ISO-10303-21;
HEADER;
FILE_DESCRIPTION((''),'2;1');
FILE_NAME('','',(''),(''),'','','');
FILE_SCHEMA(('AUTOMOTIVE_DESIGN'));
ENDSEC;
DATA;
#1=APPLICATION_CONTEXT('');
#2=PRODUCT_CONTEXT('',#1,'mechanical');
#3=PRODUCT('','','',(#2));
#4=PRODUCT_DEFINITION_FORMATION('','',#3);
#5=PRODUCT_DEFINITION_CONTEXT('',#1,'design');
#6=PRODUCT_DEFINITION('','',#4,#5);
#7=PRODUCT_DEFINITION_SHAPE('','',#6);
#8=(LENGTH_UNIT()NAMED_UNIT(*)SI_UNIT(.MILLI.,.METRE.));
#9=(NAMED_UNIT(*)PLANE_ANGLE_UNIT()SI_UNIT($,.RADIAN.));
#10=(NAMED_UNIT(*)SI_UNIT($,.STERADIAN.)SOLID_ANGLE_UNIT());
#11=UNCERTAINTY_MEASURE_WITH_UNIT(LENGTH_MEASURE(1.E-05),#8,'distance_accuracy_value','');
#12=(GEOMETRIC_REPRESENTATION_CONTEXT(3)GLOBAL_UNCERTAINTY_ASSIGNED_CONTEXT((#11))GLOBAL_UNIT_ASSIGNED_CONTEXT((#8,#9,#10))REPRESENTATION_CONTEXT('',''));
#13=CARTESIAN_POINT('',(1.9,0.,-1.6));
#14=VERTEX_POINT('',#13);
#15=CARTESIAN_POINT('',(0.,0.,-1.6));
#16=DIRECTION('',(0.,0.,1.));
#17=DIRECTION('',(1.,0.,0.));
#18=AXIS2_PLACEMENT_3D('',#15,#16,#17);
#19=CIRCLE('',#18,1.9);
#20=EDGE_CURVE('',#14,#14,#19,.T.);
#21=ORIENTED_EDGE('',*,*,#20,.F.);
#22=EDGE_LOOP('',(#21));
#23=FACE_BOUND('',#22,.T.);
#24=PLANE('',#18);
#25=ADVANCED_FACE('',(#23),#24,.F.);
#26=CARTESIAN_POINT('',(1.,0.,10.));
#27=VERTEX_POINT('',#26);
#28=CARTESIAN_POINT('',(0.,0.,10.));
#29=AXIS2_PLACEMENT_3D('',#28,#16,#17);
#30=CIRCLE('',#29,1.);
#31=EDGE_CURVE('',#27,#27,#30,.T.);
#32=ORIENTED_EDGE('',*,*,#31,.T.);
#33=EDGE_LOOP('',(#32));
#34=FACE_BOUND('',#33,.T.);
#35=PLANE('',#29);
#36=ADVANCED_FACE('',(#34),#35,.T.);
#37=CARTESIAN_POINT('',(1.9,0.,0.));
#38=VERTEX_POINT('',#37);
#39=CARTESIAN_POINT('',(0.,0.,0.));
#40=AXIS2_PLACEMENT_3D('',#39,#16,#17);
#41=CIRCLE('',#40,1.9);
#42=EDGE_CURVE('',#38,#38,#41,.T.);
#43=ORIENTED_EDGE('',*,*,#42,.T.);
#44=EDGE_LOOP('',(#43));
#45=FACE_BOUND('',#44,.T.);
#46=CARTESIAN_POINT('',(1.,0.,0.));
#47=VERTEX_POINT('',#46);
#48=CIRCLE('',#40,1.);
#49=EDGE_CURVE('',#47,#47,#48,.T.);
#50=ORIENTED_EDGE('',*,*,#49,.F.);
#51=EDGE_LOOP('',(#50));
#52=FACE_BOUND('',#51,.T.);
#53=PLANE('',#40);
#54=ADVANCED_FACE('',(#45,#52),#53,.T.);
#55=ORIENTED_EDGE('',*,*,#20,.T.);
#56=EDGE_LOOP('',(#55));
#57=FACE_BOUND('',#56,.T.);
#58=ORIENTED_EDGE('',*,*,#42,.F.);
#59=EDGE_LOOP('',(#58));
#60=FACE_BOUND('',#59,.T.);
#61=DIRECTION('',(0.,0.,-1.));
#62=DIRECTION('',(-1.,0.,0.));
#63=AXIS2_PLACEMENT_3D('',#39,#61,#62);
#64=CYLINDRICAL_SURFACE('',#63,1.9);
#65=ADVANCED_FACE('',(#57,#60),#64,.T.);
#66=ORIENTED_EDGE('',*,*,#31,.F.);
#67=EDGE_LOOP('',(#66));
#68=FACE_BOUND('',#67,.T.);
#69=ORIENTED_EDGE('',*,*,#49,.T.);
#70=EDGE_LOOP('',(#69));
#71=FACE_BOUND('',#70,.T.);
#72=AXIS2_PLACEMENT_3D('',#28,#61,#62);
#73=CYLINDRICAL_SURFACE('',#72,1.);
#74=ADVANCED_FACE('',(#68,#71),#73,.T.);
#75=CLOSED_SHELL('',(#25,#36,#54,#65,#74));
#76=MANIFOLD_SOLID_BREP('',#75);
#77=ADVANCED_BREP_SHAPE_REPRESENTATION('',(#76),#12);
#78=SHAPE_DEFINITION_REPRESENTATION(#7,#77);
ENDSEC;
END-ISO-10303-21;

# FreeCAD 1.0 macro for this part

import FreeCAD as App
import Part
import Sketcher
Q = App.Units.Quantity

doc = App.newDocument("Part")
body = doc.addObject("PartDesign::Body", "Body")

# Sketch on XY plane
sketch1 = body.newObject("Sketcher::SketchObject", "Sketch")
sketch1.AttachmentSupport = (doc.getObject("XY_Plane"), [""])
sketch1.MapMode = "FlatFace"
sketch1.addGeometry(Part.Circle(App.Vector(0, 0, 0), App.Vector(0, 0, 1), 1), False)
sketch1.addConstraint([
    Sketcher.Constraint("Coincident", 0, 3, -1, 1),
    Sketcher.Constraint("Diameter", 0, Q("2 mm")),
])
pad1 = body.newObject("PartDesign::Pad", "Pad")
pad1.Profile = sketch1
pad1.Length = 10

# Sketch on XY plane
sketch2 = body.newObject("Sketcher::SketchObject", "Sketch001")
sketch2.AttachmentSupport = (doc.getObject("XY_Plane"), [""])
sketch2.MapMode = "FlatFace"
sketch2.AttachmentOffset = App.Placement(App.Vector(0, 0, -1.6), App.Rotation())
sketch2.addGeometry(Part.Circle(App.Vector(0, 0, 0), App.Vector(0, 0, 1), 1.9), False)
sketch2.addConstraint([
    Sketcher.Constraint("Coincident", 0, 3, -1, 1),
    Sketcher.Constraint("Diameter", 0, Q("3.8 mm")),
])
pad2 = body.newObject("PartDesign::Pad", "Pad001")
pad2.Profile = sketch2
pad2.Length = 1.6

doc.recompute()
